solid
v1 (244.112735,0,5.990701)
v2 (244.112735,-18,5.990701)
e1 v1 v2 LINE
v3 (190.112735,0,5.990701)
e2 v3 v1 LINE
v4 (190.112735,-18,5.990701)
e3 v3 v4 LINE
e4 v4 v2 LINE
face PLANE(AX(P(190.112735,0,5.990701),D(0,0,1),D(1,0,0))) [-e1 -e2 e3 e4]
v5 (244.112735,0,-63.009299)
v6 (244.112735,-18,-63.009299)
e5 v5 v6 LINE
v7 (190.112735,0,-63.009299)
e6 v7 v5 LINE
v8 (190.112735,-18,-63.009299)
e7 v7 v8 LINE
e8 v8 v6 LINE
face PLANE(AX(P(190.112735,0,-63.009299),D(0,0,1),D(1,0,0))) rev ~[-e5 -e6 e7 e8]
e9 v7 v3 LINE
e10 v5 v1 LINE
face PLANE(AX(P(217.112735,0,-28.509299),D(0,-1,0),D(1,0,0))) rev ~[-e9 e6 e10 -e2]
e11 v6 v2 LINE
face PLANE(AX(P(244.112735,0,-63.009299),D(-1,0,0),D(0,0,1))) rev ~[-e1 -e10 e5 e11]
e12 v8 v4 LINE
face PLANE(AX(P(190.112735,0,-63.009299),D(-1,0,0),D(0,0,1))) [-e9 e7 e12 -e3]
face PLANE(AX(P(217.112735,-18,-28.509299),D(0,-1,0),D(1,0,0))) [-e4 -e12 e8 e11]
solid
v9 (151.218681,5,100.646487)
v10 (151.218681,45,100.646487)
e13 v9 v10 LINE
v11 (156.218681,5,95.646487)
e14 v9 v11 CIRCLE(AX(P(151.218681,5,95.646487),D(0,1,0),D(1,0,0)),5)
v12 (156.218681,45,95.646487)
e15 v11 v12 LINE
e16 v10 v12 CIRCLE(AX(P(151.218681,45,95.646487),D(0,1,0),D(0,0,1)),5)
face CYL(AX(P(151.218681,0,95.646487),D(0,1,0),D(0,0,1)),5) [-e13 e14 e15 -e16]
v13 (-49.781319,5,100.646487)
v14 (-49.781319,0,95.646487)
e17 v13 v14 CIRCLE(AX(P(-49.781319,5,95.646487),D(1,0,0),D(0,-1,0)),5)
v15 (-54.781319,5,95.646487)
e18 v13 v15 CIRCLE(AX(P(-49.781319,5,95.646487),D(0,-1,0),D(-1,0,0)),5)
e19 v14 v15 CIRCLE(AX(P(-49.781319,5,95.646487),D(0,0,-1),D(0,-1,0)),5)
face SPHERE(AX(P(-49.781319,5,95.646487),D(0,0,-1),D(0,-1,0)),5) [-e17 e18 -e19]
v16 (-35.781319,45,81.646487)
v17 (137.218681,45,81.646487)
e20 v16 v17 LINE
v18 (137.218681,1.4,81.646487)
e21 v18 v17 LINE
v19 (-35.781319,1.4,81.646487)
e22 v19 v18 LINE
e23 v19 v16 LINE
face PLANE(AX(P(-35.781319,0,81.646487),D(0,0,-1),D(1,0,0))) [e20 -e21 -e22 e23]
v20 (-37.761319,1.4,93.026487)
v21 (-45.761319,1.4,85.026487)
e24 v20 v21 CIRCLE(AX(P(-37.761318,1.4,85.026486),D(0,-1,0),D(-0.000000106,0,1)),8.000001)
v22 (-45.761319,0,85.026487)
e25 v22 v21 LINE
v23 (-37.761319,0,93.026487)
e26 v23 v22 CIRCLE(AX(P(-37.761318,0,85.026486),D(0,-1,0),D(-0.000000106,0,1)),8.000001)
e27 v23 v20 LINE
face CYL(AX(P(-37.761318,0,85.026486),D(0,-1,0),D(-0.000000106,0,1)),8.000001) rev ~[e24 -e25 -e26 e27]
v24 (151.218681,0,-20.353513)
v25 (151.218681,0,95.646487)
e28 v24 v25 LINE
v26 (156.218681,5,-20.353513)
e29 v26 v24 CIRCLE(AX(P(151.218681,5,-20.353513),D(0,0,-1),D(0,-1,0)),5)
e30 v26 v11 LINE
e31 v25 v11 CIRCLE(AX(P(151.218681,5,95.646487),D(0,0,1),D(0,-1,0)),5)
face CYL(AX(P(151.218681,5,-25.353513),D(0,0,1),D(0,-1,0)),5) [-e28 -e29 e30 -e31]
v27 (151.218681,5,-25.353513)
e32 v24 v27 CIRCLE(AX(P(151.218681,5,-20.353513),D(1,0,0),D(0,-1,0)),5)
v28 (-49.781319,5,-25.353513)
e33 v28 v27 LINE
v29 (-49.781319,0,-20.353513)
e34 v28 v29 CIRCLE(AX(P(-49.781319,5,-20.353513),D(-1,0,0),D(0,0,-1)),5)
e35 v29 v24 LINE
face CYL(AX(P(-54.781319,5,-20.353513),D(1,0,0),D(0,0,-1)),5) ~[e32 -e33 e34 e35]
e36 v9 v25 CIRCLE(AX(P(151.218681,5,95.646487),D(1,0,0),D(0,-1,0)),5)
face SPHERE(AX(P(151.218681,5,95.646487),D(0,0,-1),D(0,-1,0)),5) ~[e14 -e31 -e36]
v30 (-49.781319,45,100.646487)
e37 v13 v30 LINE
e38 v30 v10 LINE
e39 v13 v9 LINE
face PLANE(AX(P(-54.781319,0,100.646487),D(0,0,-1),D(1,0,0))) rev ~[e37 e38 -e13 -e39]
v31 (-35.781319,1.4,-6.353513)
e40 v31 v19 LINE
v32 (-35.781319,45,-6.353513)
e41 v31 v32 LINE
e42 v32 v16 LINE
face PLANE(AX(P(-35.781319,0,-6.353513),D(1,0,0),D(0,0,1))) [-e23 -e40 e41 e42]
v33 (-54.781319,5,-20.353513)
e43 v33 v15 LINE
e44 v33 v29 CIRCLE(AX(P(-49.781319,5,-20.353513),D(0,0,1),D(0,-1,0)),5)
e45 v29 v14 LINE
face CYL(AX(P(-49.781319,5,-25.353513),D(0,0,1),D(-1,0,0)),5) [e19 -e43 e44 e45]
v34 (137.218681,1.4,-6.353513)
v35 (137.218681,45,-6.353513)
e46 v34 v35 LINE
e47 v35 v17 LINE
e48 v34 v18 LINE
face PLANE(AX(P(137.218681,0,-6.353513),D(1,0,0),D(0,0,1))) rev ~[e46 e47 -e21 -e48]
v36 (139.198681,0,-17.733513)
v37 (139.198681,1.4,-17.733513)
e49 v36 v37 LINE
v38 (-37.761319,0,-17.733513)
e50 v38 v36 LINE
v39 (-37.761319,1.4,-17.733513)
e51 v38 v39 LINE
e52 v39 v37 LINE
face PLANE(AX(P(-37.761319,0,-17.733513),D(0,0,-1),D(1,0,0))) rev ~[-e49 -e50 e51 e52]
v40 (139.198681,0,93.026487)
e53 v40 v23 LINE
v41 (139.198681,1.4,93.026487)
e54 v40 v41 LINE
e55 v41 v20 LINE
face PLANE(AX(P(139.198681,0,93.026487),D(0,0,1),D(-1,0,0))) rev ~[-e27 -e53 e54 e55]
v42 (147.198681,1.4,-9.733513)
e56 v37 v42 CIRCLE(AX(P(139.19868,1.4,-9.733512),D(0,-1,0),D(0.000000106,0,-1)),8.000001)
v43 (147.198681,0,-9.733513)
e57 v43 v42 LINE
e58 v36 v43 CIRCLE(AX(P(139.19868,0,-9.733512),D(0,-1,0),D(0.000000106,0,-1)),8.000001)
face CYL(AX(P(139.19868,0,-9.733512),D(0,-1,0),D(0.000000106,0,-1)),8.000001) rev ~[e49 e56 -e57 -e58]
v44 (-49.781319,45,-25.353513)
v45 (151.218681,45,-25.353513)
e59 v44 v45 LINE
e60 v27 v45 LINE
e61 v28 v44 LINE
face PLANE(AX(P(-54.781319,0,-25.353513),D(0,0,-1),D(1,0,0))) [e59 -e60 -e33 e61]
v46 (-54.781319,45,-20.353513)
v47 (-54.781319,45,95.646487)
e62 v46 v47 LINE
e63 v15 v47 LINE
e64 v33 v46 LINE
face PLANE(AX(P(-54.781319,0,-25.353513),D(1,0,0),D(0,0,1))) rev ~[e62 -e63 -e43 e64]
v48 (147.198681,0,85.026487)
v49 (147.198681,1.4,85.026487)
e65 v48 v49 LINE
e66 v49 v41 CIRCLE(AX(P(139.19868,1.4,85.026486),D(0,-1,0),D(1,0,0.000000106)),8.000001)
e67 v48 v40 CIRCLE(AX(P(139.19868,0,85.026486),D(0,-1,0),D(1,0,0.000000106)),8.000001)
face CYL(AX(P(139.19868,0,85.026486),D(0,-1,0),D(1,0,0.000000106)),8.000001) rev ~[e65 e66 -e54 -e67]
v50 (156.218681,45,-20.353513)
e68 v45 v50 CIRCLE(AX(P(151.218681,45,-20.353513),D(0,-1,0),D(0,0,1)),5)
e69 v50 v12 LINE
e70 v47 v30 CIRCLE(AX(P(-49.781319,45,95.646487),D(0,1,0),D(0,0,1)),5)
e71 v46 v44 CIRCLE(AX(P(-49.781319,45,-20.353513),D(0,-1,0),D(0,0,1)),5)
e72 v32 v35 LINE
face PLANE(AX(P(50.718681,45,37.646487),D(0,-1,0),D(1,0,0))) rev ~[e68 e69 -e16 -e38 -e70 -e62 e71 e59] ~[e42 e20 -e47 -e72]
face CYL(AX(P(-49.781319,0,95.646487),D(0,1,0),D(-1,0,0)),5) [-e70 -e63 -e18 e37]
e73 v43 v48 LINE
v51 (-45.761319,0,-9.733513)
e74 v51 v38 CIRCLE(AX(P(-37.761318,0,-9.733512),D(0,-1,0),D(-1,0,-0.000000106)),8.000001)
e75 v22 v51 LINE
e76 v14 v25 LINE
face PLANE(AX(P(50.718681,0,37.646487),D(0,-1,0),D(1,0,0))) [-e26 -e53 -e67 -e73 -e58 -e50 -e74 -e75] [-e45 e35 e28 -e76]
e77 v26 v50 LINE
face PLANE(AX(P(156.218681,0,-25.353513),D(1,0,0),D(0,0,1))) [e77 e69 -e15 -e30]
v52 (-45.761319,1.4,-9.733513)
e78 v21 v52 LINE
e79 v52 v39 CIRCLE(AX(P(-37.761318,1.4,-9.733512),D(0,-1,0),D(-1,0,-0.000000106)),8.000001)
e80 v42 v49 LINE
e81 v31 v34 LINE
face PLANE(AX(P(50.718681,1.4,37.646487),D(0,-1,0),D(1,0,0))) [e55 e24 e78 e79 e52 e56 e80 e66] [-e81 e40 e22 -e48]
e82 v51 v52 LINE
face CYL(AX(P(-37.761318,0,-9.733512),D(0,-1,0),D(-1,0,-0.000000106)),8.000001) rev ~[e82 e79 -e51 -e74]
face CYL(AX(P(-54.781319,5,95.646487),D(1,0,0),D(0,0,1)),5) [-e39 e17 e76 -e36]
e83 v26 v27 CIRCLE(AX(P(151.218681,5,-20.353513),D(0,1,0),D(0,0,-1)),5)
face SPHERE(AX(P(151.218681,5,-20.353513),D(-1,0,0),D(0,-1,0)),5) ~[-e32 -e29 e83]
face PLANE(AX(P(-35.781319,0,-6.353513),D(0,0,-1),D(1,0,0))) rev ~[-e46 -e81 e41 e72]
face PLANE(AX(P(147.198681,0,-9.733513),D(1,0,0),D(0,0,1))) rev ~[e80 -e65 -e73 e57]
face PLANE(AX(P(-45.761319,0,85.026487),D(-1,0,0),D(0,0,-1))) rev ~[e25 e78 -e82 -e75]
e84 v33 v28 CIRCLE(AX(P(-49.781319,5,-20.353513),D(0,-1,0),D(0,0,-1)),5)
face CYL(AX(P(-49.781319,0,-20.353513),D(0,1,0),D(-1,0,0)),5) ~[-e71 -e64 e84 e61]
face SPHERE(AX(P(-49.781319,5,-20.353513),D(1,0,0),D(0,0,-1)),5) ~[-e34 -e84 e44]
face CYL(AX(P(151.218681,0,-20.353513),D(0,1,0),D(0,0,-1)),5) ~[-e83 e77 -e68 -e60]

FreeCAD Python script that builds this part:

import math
import FreeCAD as App
import Part
import Sketcher
Q = App.Units.Quantity


def edges_at(feature, points):
    """Names of the edges that pass closest to the given points."""
    edges = feature.Shape.Edges
    near = lambda p: min(range(len(edges)), key=lambda i: edges[i].distToShape(Part.Vertex(*p))[0])
    return sorted({f"Edge{near(p) + 1}" for p in points})

doc = App.newDocument("Part")
body = doc.addObject("PartDesign::Body", "Body")

# Sketch on XZ plane
sketch1 = body.newObject("Sketcher::SketchObject", "Sketch")
sketch1.AttachmentSupport = (doc.getObject("XZ_Plane"), [""])
sketch1.MapMode = "FlatFace"
sketch1.addGeometry([
    Part.LineSegment(App.Vector(-55, 101, 0), App.Vector(-55, -25, 0)),  # 0
    Part.LineSegment(App.Vector(-55, -25, 0), App.Vector(156, -25, 0)),  # 1
    Part.LineSegment(App.Vector(156, -25, 0), App.Vector(156, 101, 0)),  # 2
    Part.LineSegment(App.Vector(156, 101, 0), App.Vector(-55, 101, 0)),  # 3
    Part.LineSegment(App.Vector(137, -6, 0), App.Vector(-36, -6, 0)),  # 4
    Part.LineSegment(App.Vector(-36, -6, 0), App.Vector(-36, 82, 0)),  # 5
    Part.LineSegment(App.Vector(-36, 82, 0), App.Vector(137, 82, 0)),  # 6
    Part.LineSegment(App.Vector(137, 82, 0), App.Vector(137, -6, 0)),  # 7
], False)
sketch1.addConstraint([
    Sketcher.Constraint("Coincident", 0, 2, 1, 1),
    Sketcher.Constraint("Coincident", 1, 2, 2, 1),
    Sketcher.Constraint("Coincident", 2, 2, 3, 1),
    Sketcher.Constraint("Coincident", 3, 2, 0, 1),
    Sketcher.Constraint("Coincident", 4, 2, 5, 1),
    Sketcher.Constraint("Coincident", 5, 2, 6, 1),
    Sketcher.Constraint("Coincident", 6, 2, 7, 1),
    Sketcher.Constraint("Coincident", 7, 2, 4, 1),
    Sketcher.Constraint("Vertical", 0),
    Sketcher.Constraint("Horizontal", 1),
    Sketcher.Constraint("Vertical", 2),
    Sketcher.Constraint("Horizontal", 3),
    Sketcher.Constraint("Horizontal", 4),
    Sketcher.Constraint("Vertical", 5),
    Sketcher.Constraint("Horizontal", 6),
    Sketcher.Constraint("Vertical", 7),
    Sketcher.Constraint("DistanceX", 1, 1, 1, 2, Q("211 mm")),
    Sketcher.Constraint("DistanceX", 4, 2, 4, 1, Q("173 mm")),
    Sketcher.Constraint("DistanceY", 0, 2, 0, 1, Q("126 mm")),
    Sketcher.Constraint("DistanceY", 5, 1, 5, 2, Q("88 mm")),
    Sketcher.Constraint("DistanceX", 0, 2, 4, 2, Q("19 mm")),
    Sketcher.Constraint("DistanceY", 0, 2, 4, 2, Q("19 mm")),
    Sketcher.Constraint("DistanceX", 0, 2, -1, 1, Q("54.781319 mm")),
    Sketcher.Constraint("DistanceY", 0, 2, -1, 1, Q("25.353513 mm")),
])
pad1 = body.newObject("PartDesign::Pad", "Pad")
pad1.Profile = sketch1
pad1.Length = 45
pad1.Reversed = True

# Sketch on XZ plane
sketch2 = body.newObject("Sketcher::SketchObject", "Sketch001")
sketch2.AttachmentSupport = (doc.getObject("XZ_Plane"), [""])
sketch2.MapMode = "FlatFace"
sketch2.addGeometry([
    Part.LineSegment(App.Vector(139, 93, 0), App.Vector(-38, 93, 0)),  # 0
    Part.ArcOfCircle(Part.Circle(App.Vector(-38, 85, 0), App.Vector(0, 0, 1), 8), math.radians(90), math.radians(180)),  # 1
    Part.LineSegment(App.Vector(-46, 85, 0), App.Vector(-46, -10, 0)),  # 2
    Part.ArcOfCircle(Part.Circle(App.Vector(-38, -10, 0), App.Vector(0, 0, 1), 8), math.radians(-180), math.radians(-90)),  # 3
    Part.LineSegment(App.Vector(-38, -18, 0), App.Vector(139, -18, 0)),  # 4
    Part.ArcOfCircle(Part.Circle(App.Vector(139, -10, 0), App.Vector(0, 0, 1), 8), math.radians(-90), math.radians(0)),  # 5
    Part.LineSegment(App.Vector(147, -10, 0), App.Vector(147, 85, 0)),  # 6
    Part.ArcOfCircle(Part.Circle(App.Vector(139, 85, 0), App.Vector(0, 0, 1), 8), math.radians(0), math.radians(90)),  # 7
    Part.LineSegment(App.Vector(137, -6, 0), App.Vector(-36, -6, 0)),  # 8
    Part.LineSegment(App.Vector(-36, -6, 0), App.Vector(-36, 82, 0)),  # 9
    Part.LineSegment(App.Vector(-36, 82, 0), App.Vector(137, 82, 0)),  # 10
    Part.LineSegment(App.Vector(137, 82, 0), App.Vector(137, -6, 0)),  # 11
], False)
sketch2.addConstraint([
    Sketcher.Constraint("Tangent", 0, 2, 1, 1),
    Sketcher.Constraint("Tangent", 1, 2, 2, 1),
    Sketcher.Constraint("Tangent", 2, 2, 3, 1),
    Sketcher.Constraint("Tangent", 3, 2, 4, 1),
    Sketcher.Constraint("Tangent", 4, 2, 5, 1),
    Sketcher.Constraint("Tangent", 5, 2, 6, 1),
    Sketcher.Constraint("Tangent", 6, 2, 7, 1),
    Sketcher.Constraint("Tangent", 7, 2, 0, 1),
    Sketcher.Constraint("Coincident", 8, 2, 9, 1),
    Sketcher.Constraint("Coincident", 9, 2, 10, 1),
    Sketcher.Constraint("Coincident", 10, 2, 11, 1),
    Sketcher.Constraint("Coincident", 11, 2, 8, 1),
    Sketcher.Constraint("Horizontal", 0),
    Sketcher.Constraint("Vertical", 2),
    Sketcher.Constraint("Horizontal", 4),
    Sketcher.Constraint("Vertical", 6),
    Sketcher.Constraint("Horizontal", 8),
    Sketcher.Constraint("Vertical", 9),
    Sketcher.Constraint("Horizontal", 10),
    Sketcher.Constraint("Vertical", 11),
    Sketcher.Constraint("Equal", 1, 3),
    Sketcher.Constraint("Equal", 3, 5),
    Sketcher.Constraint("Equal", 5, 7),
    Sketcher.Constraint("Radius", 1, Q("8.000001 mm")),
    Sketcher.Constraint("DistanceX", 8, 2, 8, 1, Q("173 mm")),
    Sketcher.Constraint("DistanceY", 9, 1, 9, 2, Q("88 mm")),
    Sketcher.Constraint("DistanceX", 0, 2, 0, 1, Q("176.96 mm")),
    Sketcher.Constraint("DistanceY", 2, 2, 2, 1, Q("94.76 mm")),
    Sketcher.Constraint("DistanceX", 3, 3, 8, 2, Q("1.979999 mm")),
    Sketcher.Constraint("DistanceY", 3, 3, 8, 2, Q("3.379999 mm")),
    Sketcher.Constraint("DistanceX", 1, 3, -1, 1, Q("37.761318 mm")),
    Sketcher.Constraint("DistanceY", -1, 1, 1, 3, Q("85.026486 mm")),
])
pocket1 = body.newObject("PartDesign::Pocket", "Pocket")
pocket1.Profile = sketch2
pocket1.Length = 1.4
doc.recompute()

fillet = body.newObject("PartDesign::Fillet", "Fillet")
fillet.Base = (pocket1, edges_at(pocket1, [
    (50.719, 0, -25.354),
    (156.219, 0, 37.646),
    (156.219, 22.5, -25.354),
    (-54.781, 22.5, -25.354),
    (-54.781, 0, 37.646),
    (50.719, 0, 100.646),
    (156.219, 22.5, 100.646),
    (-54.781, 22.5, 100.646),
]))
fillet.Radius = 5
body2 = doc.addObject("PartDesign::Body", "Body001")

# Sketch on XZ plane
sketch3 = body2.newObject("Sketcher::SketchObject", "Sketch002")
sketch3.AttachmentSupport = (doc.getObject("XZ_Plane001"), [""])
sketch3.MapMode = "FlatFace"
sketch3.addGeometry([
    Part.LineSegment(App.Vector(190, 6, 0), App.Vector(190, -63, 0)),
    Part.LineSegment(App.Vector(190, -63, 0), App.Vector(244, -63, 0)),
    Part.LineSegment(App.Vector(244, -63, 0), App.Vector(244, 6, 0)),
    Part.LineSegment(App.Vector(244, 6, 0), App.Vector(190, 6, 0)),
], False)
sketch3.addConstraint([
    Sketcher.Constraint("Coincident", 0, 2, 1, 1),
    Sketcher.Constraint("Coincident", 1, 2, 2, 1),
    Sketcher.Constraint("Coincident", 2, 2, 3, 1),
    Sketcher.Constraint("Coincident", 3, 2, 0, 1),
    Sketcher.Constraint("Vertical", 0),
    Sketcher.Constraint("Horizontal", 1),
    Sketcher.Constraint("Vertical", 2),
    Sketcher.Constraint("Horizontal", 3),
    Sketcher.Constraint("DistanceX", 1, 1, 1, 2, Q("54 mm")),
    Sketcher.Constraint("DistanceY", 0, 2, 0, 1, Q("69 mm")),
    Sketcher.Constraint("DistanceY", 0, 2, -1, 1, Q("63.009299 mm")),
    Sketcher.Constraint("DistanceX", -1, 1, 0, 2, Q("190.112735 mm")),
])
pad2 = body2.newObject("PartDesign::Pad", "Pad001")
pad2.Profile = sketch3
pad2.Length = 18

doc.recompute()
